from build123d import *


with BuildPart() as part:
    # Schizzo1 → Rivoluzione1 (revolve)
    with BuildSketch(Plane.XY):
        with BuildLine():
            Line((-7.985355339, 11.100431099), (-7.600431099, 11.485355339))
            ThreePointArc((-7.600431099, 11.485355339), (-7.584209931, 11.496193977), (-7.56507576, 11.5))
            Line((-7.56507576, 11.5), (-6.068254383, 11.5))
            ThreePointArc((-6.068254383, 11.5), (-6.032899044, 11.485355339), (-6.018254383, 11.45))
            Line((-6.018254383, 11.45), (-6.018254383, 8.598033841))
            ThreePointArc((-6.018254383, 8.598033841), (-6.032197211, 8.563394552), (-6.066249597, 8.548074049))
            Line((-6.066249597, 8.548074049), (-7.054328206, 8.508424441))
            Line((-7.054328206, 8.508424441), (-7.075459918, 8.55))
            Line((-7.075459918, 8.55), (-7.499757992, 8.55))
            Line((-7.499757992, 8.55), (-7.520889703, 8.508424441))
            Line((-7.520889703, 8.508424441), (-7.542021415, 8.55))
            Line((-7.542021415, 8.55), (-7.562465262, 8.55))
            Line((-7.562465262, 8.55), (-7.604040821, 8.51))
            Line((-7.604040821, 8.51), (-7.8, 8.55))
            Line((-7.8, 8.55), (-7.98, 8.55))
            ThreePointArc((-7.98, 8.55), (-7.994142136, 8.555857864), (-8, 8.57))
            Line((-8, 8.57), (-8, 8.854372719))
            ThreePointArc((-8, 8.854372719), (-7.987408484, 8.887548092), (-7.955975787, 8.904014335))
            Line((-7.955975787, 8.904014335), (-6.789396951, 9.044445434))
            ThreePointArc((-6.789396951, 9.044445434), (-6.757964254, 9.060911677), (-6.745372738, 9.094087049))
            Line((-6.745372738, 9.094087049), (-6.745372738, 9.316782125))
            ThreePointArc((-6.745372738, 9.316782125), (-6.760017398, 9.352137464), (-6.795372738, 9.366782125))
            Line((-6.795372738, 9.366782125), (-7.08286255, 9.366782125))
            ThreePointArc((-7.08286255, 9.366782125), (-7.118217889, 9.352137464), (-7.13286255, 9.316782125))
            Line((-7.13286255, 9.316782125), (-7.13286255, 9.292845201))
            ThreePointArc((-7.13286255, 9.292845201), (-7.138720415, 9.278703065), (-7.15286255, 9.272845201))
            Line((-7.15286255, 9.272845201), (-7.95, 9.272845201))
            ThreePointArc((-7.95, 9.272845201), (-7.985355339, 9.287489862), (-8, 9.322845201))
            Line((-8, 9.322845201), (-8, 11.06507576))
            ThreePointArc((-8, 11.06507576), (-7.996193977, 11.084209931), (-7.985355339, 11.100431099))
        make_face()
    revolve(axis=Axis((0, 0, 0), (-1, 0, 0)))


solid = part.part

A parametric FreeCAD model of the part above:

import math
import FreeCAD as App
import Part
import Sketcher

V = App.Vector
Q = App.Units.Quantity

doc = App.newDocument("Part")
params = doc.addObject("Spreadsheet::Sheet", "Params")
for row, (alias, value) in enumerate([
    ("sketch1_radius", "0.05 mm"),
    ("sketch1_radius2", "0.02 mm"),
    ("sketch1_length", "0.2 mm"),
    ("sketch1_width", "0.18 mm"),
    ("revolution_angle", "360 deg"),
], start=1):
    params.set(f"A{row}", alias)
    params.set(f"B{row}", "=" + value)
    params.setAlias(f"B{row}", alias)

body = doc.addObject("PartDesign::Body", "Body")

sketch1 = body.newObject("Sketcher::SketchObject", "Sketch")
sketch1.AttachmentSupport = (doc.getObject("XY_Plane"), [""])
sketch1.MapMode = "FlatFace"
sketch1.addGeometry([
    Part.LineSegment(V(-7.6, 11.485, 0), V(-7.985, 11.1, 0)),
    Part.ArcOfCircle(Part.Circle(V(-7.95, 11.065, 0), V(0, 0, 1), 0.05), math.radians(135), math.radians(180)),
    Part.LineSegment(V(-8, 11.065, 0), V(-8, 9.323, 0)),
    Part.ArcOfCircle(Part.Circle(V(-7.95, 9.323, 0), V(0, 0, 1), 0.05), math.radians(180), math.radians(270)),
    Part.LineSegment(V(-7.95, 9.273, 0), V(-7.153, 9.273, 0)),
    Part.ArcOfCircle(Part.Circle(V(-7.153, 9.293, 0), V(0, 0, 1), 0.02), math.radians(-90), math.radians(0)),
    Part.LineSegment(V(-7.133, 9.293, 0), V(-7.133, 9.317, 0)),
    Part.ArcOfCircle(Part.Circle(V(-7.083, 9.317, 0), V(0, 0, 1), 0.05), math.radians(90), math.radians(180)),
    Part.LineSegment(V(-7.083, 9.367, 0), V(-6.795, 9.367, 0)),
    Part.ArcOfCircle(Part.Circle(V(-6.795, 9.317, 0), V(0, 0, 1), 0.05), math.radians(0), math.radians(90)),
    Part.LineSegment(V(-6.745, 9.317, 0), V(-6.745, 9.094, 0)),
    Part.ArcOfCircle(Part.Circle(V(-6.795, 9.094, 0), V(0, 0, 1), 0.05), math.radians(-83), math.radians(0)),
    Part.LineSegment(V(-6.789, 9.044, 0), V(-7.956, 8.904, 0)),
    Part.ArcOfCircle(Part.Circle(V(-7.95, 8.854, 0), V(0, 0, 1), 0.05), math.radians(97), math.radians(180)),
    Part.LineSegment(V(-8, 8.854, 0), V(-8, 8.57, 0)),
    Part.ArcOfCircle(Part.Circle(V(-7.98, 8.57, 0), V(0, 0, 1), 0.02), math.radians(180), math.radians(270)),
    Part.LineSegment(V(-7.98, 8.55, 0), V(-7.8, 8.55, 0)),
    Part.LineSegment(V(-7.8, 8.55, 0), V(-7.604, 8.51, 0)),
    Part.LineSegment(V(-7.604, 8.51, 0), V(-7.562, 8.55, 0)),
    Part.LineSegment(V(-7.562, 8.55, 0), V(-7.542, 8.55, 0)),
    Part.LineSegment(V(-7.542, 8.55, 0), V(-7.521, 8.508, 0)),
    Part.LineSegment(V(-7.521, 8.508, 0), V(-7.5, 8.55, 0)),
    Part.LineSegment(V(-7.5, 8.55, 0), V(-7.075, 8.55, 0)),
    Part.LineSegment(V(-7.075, 8.55, 0), V(-7.054, 8.508, 0)),
    Part.LineSegment(V(-7.054, 8.508, 0), V(-6.066, 8.548, 0)),
    Part.ArcOfCircle(Part.Circle(V(-6.068, 8.598, 0), V(0, 0, 1), 0.05), math.radians(-88), math.radians(0)),
    Part.LineSegment(V(-6.018, 8.598, 0), V(-6.018, 11.45, 0)),
    Part.ArcOfCircle(Part.Circle(V(-6.068, 11.45, 0), V(0, 0, 1), 0.05), math.radians(0), math.radians(90)),
    Part.LineSegment(V(-6.068, 11.5, 0), V(-7.565, 11.5, 0)),
    Part.ArcOfCircle(Part.Circle(V(-7.565, 11.45, 0), V(0, 0, 1), 0.05), math.radians(90), math.radians(135)),
], False)
sketch1.addConstraint([
    Sketcher.Constraint("Tangent", 0, 2, 1, 1),
    Sketcher.Constraint("Tangent", 1, 2, 2, 1),
    Sketcher.Constraint("Tangent", 2, 2, 3, 1),
    Sketcher.Constraint("Tangent", 3, 2, 4, 1),
    Sketcher.Constraint("Tangent", 4, 2, 5, 1),
    Sketcher.Constraint("Tangent", 5, 2, 6, 1),
    Sketcher.Constraint("Tangent", 6, 2, 7, 2),
    Sketcher.Constraint("Tangent", 7, 1, 8, 1),
    Sketcher.Constraint("Tangent", 8, 2, 9, 2),
    Sketcher.Constraint("Tangent", 9, 1, 10, 1),
    Sketcher.Constraint("Tangent", 10, 2, 11, 2),
    Sketcher.Constraint("Tangent", 11, 1, 12, 1),
    Sketcher.Constraint("Tangent", 12, 2, 13, 1),
    Sketcher.Constraint("Tangent", 13, 2, 14, 1),
    Sketcher.Constraint("Tangent", 14, 2, 15, 1),
    Sketcher.Constraint("Tangent", 15, 2, 16, 1),
    Sketcher.Constraint("Coincident", 16, 2, 17, 1),
    Sketcher.Constraint("Coincident", 17, 2, 18, 1),
    Sketcher.Constraint("Coincident", 18, 2, 19, 1),
    Sketcher.Constraint("Coincident", 19, 2, 20, 1),
    Sketcher.Constraint("Coincident", 20, 2, 21, 1),
    Sketcher.Constraint("Coincident", 21, 2, 22, 1),
    Sketcher.Constraint("Coincident", 22, 2, 23, 1),
    Sketcher.Constraint("Coincident", 23, 2, 24, 1),
    Sketcher.Constraint("Tangent", 24, 2, 25, 1),
    Sketcher.Constraint("Tangent", 25, 2, 26, 1),
    Sketcher.Constraint("Tangent", 26, 2, 27, 1),
    Sketcher.Constraint("Tangent", 27, 2, 28, 1),
    Sketcher.Constraint("Tangent", 28, 2, 29, 1),
    Sketcher.Constraint("Tangent", 29, 2, 0, 1),
    Sketcher.Constraint("Vertical", 2),
    Sketcher.Constraint("Horizontal", 4),
    Sketcher.Constraint("Vertical", 6),
    Sketcher.Constraint("Horizontal", 8),
    Sketcher.Constraint("Vertical", 10),
    Sketcher.Constraint("Vertical", 14),
    Sketcher.Constraint("Horizontal", 16),
    Sketcher.Constraint("Horizontal", 19),
    Sketcher.Constraint("Horizontal", 22),
    Sketcher.Constraint("Vertical", 26),
    Sketcher.Constraint("Horizontal", 28),
    Sketcher.Constraint("Equal", 1, 3),
    Sketcher.Constraint("Equal", 3, 7),
    Sketcher.Constraint("Equal", 7, 9),
    Sketcher.Constraint("Equal", 9, 11),
    Sketcher.Constraint("Equal", 11, 13),
    Sketcher.Constraint("Equal", 5, 15),
    Sketcher.Constraint("Equal", 13, 25),
    Sketcher.Constraint("Equal", 25, 27),
    Sketcher.Constraint("Equal", 27, 29),
    Sketcher.Constraint("Parallel", 20, 23),
    Sketcher.Constraint("Horizontal", 16, 2, 18, 2),
    Sketcher.Constraint("Horizontal", 19, 2, 21, 2),
    Sketcher.Constraint("Horizontal", 20, 2, 23, 2),
    Sketcher.Constraint("Vertical", 3, 3, 13, 3),
    Sketcher.Constraint("Equal", 20, 21),
    Sketcher.Constraint("Angle", 0, Q("-135 deg")),
    Sketcher.Constraint("Radius", 1, 0.05),
    Sketcher.Constraint("Radius", 5, 0.02),
    Sketcher.Constraint("DistanceX", 1, 2, -1, 1, 8.0),
    Sketcher.Constraint("Distance", 17, 0.2),
    Sketcher.Constraint("DistanceX", 16, 1, 16, 2, 0.18),
    Sketcher.Constraint("DistanceY", -1, 1, 27, 2, 11.5),
    Sketcher.Constraint("DistanceY", -1, 1, 15, 3, 8.57),
    Sketcher.Constraint("DistanceY", -1, 1, 17, 2, 8.51),
    Sketcher.Constraint("Distance", 12, 1.175001),
    Sketcher.Constraint("DistanceX", 22, 1, 22, 2, 0.424298),
    Sketcher.Constraint("DistanceX", 8, 1, 8, 2, 0.28749),
    Sketcher.Constraint("DistanceX", 28, 2, 28, 1, 1.496821),
    Sketcher.Constraint("DistanceY", 2, 2, 2, 1, 1.742231),
    Sketcher.Constraint("DistanceX", 0, 2, 27, 3, 1.917101),
    Sketcher.Constraint("DistanceX", 4, 1, 4, 2, 0.797137),
    Sketcher.Constraint("DistanceX", 19, 1, 19, 2, 0.020444),
    Sketcher.Constraint("DistanceY", 6, 1, 6, 2, 0.023937),
    Sketcher.Constraint("DistanceY", 10, 2, 10, 1, 0.222695),
    Sketcher.Constraint("DistanceY", 26, 1, 26, 2, 2.851966),
    Sketcher.Constraint("DistanceX", 19, 2, -1, 1, 7.542021),
    Sketcher.Constraint("DistanceX", 20, 2, -1, 1, 7.52089),
    Sketcher.Constraint("DistanceX", 24, 2, -1, 1, 6.06625),
])
sketch1.setExpression("Constraints[57]", "Params.sketch1_radius")
sketch1.setExpression("Constraints[58]", "Params.sketch1_radius2")
sketch1.setExpression("Constraints[60]", "Params.sketch1_length")
sketch1.setExpression("Constraints[61]", "Params.sketch1_width")
revolution = body.newObject("PartDesign::Revolution", "Revolution")
revolution.Profile = sketch1
revolution.ReferenceAxis = (sketch1, ["H_Axis"])
revolution.setExpression("Angle", "Params.revolution_angle")

doc.recompute()
